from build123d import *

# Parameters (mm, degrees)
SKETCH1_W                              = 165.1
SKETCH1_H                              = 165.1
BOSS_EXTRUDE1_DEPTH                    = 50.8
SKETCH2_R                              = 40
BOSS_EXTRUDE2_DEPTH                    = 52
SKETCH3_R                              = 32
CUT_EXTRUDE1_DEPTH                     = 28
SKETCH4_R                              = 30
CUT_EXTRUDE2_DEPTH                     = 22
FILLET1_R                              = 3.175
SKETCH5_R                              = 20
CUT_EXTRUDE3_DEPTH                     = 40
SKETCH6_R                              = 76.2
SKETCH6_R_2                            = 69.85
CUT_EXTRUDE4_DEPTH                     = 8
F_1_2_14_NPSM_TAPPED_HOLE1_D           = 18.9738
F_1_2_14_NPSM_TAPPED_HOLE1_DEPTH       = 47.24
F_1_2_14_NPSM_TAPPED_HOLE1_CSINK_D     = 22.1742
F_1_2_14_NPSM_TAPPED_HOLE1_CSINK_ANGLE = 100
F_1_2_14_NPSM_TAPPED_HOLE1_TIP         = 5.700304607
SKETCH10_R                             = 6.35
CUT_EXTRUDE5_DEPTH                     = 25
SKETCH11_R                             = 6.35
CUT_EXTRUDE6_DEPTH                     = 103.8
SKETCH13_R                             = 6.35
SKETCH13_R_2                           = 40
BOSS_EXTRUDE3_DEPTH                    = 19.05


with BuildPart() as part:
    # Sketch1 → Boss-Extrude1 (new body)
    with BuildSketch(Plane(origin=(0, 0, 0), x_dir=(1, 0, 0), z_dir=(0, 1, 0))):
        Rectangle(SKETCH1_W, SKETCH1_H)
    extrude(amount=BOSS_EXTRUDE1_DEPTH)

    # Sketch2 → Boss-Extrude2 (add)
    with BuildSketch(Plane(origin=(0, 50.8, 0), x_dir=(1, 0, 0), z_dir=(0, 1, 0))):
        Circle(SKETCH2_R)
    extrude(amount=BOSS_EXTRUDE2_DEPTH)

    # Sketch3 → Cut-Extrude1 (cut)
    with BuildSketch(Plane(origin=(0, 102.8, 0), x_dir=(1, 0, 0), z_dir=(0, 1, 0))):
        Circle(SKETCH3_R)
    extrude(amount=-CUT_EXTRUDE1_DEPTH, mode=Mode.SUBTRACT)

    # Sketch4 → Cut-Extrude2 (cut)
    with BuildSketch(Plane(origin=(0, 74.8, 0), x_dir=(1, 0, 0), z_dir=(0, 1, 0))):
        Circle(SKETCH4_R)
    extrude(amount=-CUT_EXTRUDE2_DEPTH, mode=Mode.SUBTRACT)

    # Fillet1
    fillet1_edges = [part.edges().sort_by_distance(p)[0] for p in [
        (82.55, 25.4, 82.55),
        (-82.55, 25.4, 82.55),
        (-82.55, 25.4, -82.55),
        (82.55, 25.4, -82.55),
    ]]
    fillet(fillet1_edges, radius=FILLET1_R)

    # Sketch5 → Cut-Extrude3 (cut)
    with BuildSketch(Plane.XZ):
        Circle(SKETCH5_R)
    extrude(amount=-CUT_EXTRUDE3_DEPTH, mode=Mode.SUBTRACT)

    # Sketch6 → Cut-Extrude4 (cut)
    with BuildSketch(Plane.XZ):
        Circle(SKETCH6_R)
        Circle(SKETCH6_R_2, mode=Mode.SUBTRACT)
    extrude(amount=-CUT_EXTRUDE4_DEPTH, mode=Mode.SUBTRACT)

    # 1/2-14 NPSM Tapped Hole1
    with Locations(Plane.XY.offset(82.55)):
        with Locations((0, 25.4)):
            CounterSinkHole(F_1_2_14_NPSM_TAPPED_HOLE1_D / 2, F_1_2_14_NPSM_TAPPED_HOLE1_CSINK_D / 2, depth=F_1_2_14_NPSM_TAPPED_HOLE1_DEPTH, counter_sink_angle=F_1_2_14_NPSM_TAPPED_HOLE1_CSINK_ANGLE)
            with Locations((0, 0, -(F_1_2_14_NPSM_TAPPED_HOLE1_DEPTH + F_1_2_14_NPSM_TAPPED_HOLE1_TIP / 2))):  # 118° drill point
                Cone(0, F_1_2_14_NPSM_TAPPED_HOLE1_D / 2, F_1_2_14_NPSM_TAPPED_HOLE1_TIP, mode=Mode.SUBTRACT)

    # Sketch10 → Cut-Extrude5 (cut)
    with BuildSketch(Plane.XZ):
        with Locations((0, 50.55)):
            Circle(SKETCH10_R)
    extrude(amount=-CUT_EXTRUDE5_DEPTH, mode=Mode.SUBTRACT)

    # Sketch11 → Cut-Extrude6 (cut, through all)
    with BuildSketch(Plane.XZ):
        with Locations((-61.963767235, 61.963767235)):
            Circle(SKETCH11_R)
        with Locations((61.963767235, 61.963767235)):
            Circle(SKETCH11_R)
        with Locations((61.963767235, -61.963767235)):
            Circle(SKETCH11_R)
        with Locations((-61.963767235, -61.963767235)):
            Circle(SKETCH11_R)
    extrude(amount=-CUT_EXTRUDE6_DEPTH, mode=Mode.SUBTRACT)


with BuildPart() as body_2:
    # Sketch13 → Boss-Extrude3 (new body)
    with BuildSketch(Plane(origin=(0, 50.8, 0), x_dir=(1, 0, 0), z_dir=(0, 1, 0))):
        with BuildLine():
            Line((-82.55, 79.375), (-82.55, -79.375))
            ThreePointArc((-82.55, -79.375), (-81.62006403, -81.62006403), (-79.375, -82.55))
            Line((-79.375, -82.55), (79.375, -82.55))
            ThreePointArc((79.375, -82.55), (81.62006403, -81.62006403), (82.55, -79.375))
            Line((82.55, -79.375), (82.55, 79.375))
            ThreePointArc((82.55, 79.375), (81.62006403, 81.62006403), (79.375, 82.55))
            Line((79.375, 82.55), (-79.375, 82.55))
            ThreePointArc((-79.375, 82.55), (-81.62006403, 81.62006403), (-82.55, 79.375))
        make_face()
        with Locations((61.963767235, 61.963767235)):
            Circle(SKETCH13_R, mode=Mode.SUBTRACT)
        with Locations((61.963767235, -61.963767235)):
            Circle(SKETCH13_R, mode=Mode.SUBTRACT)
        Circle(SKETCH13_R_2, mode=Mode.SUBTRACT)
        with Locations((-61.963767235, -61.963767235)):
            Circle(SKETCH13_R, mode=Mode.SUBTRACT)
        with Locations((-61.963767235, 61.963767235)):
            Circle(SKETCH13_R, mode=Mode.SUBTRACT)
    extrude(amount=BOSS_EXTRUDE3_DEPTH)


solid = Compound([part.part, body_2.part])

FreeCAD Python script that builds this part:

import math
import FreeCAD as App
import Part
import Sketcher
Q = App.Units.Quantity


def edges_at(feature, points):
    """Names of the edges that pass closest to the given points."""
    edges = feature.Shape.Edges
    near = lambda p: min(range(len(edges)), key=lambda i: edges[i].distToShape(Part.Vertex(*p))[0])
    return sorted({f"Edge{near(p) + 1}" for p in points})


def add_polygon(sketch, points):
    """Adds a closed chain of lines whose ends are joined by coincident constraints."""
    first, n = sketch.GeometryCount, len(points)
    for a, b in zip(points, points[1:] + points[:1]):
        sketch.addGeometry(Part.LineSegment(App.Vector(*a, 0), App.Vector(*b, 0)), False)
    for i in range(n):
        sketch.addConstraint(Sketcher.Constraint("Coincident", first + i, 2, first + (i + 1) % n, 1))

doc = App.newDocument("Part")
body = doc.addObject("PartDesign::Body", "Body")

# Sketch on XZ plane
sketch1 = doc.addObject("Sketcher::SketchObject", "Sketch")
body.addObject(sketch1)
sketch1.AttachmentSupport = (doc.XZ_Plane, [""])
sketch1.MapMode = "FlatFace"
add_polygon(sketch1, [(-82.55, -82.55), (-82.55, 82.55), (82.55, 82.55), (82.55, -82.55)])  # lines 0-3
sketch1.addConstraint([
    Sketcher.Constraint("Vertical", 0),
    Sketcher.Constraint("Horizontal", 1),
    Sketcher.Constraint("Vertical", 2),
    Sketcher.Constraint("Horizontal", 3),
    Sketcher.Constraint("Symmetric", 0, 2, 2, 2, -1, 1),
    Sketcher.Constraint("Equal", 3, 0),
    Sketcher.Constraint("DistanceX", 1, 1, 1, 2, Q("165.1 mm")),
])
pad1 = doc.addObject("PartDesign::Pad", "Pad")
body.addObject(pad1)
pad1.Profile = sketch1
pad1.Length = 50.8
pad1.Reversed = True

# Sketch on XZ plane
sketch2 = doc.addObject("Sketcher::SketchObject", "Sketch001")
body.addObject(sketch2)
sketch2.AttachmentSupport = (doc.XZ_Plane, [""])
sketch2.MapMode = "FlatFace"
sketch2.AttachmentOffset = App.Placement(App.Vector(0, 0, -50.8), App.Rotation())
sketch2.addGeometry(Part.Circle(App.Vector(0, 0, 0), App.Vector(0, 0, 1), 40), False)
sketch2.addConstraint([
    Sketcher.Constraint("Coincident", 0, 3, -1, 1),
    Sketcher.Constraint("Diameter", 0, Q("80 mm")),
])
pad2 = doc.addObject("PartDesign::Pad", "Pad001")
body.addObject(pad2)
pad2.Profile = sketch2
pad2.Length = 52
pad2.Reversed = True

# Sketch on XZ plane
sketch3 = doc.addObject("Sketcher::SketchObject", "Sketch002")
body.addObject(sketch3)
sketch3.AttachmentSupport = (doc.XZ_Plane, [""])
sketch3.MapMode = "FlatFace"
sketch3.AttachmentOffset = App.Placement(App.Vector(0, 0, -102.8), App.Rotation())
sketch3.addGeometry(Part.Circle(App.Vector(0, 0, 0), App.Vector(0, 0, 1), 32), False)
sketch3.addConstraint([
    Sketcher.Constraint("Coincident", 0, 3, -1, 1),
    Sketcher.Constraint("Diameter", 0, Q("64 mm")),
])
pocket1 = doc.addObject("PartDesign::Pocket", "Pocket")
body.addObject(pocket1)
pocket1.Profile = sketch3
pocket1.Length = 28
pocket1.Reversed = True

# Sketch on XZ plane
sketch4 = doc.addObject("Sketcher::SketchObject", "Sketch003")
body.addObject(sketch4)
sketch4.AttachmentSupport = (doc.XZ_Plane, [""])
sketch4.MapMode = "FlatFace"
sketch4.AttachmentOffset = App.Placement(App.Vector(0, 0, -74.8), App.Rotation())
sketch4.addGeometry(Part.Circle(App.Vector(0, 0, 0), App.Vector(0, 0, 1), 30), False)
sketch4.addConstraint([
    Sketcher.Constraint("Coincident", 0, 3, -1, 1),
    Sketcher.Constraint("Diameter", 0, Q("60 mm")),
])
pocket2 = doc.addObject("PartDesign::Pocket", "Pocket001")
body.addObject(pocket2)
pocket2.Profile = sketch4
pocket2.Length = 22
pocket2.Reversed = True
doc.recompute()

fillet = doc.addObject("PartDesign::Fillet", "Fillet")
body.addObject(fillet)
fillet.Base = (pocket2, edges_at(pocket2, [
    (82.55, 25.4, 82.55),
    (-82.55, 25.4, 82.55),
    (-82.55, 25.4, -82.55),
    (82.55, 25.4, -82.55),
]))
fillet.Radius = 3.175

# Sketch on XZ plane
sketch5 = doc.addObject("Sketcher::SketchObject", "Sketch004")
body.addObject(sketch5)
sketch5.AttachmentSupport = (doc.XZ_Plane, [""])
sketch5.MapMode = "FlatFace"
sketch5.addGeometry(Part.Circle(App.Vector(0, 0, 0), App.Vector(0, 0, 1), 20), False)
sketch5.addConstraint([
    Sketcher.Constraint("Coincident", 0, 3, -1, 1),
    Sketcher.Constraint("Diameter", 0, Q("40 mm")),
])
pocket3 = doc.addObject("PartDesign::Pocket", "Pocket002")
body.addObject(pocket3)
pocket3.Profile = sketch5
pocket3.Length = 40

# Sketch on XZ plane
sketch6 = doc.addObject("Sketcher::SketchObject", "Sketch005")
body.addObject(sketch6)
sketch6.AttachmentSupport = (doc.XZ_Plane, [""])
sketch6.MapMode = "FlatFace"
sketch6.addGeometry([
    Part.Circle(App.Vector(0, 0, 0), App.Vector(0, 0, 1), 76.2),
    Part.Circle(App.Vector(0, 0, 0), App.Vector(0, 0, 1), 69.85),
], False)
sketch6.addConstraint([
    Sketcher.Constraint("Coincident", 0, 3, -1, 1),
    Sketcher.Constraint("Coincident", 1, 3, -1, 1),
    Sketcher.Constraint("Diameter", 0, Q("152.4 mm")),
    Sketcher.Constraint("Diameter", 1, Q("139.7 mm")),
])
pocket4 = doc.addObject("PartDesign::Pocket", "Pocket003")
body.addObject(pocket4)
pocket4.Profile = sketch6
pocket4.Length = 8

# Sketch on XY plane
sketch7 = doc.addObject("Sketcher::SketchObject", "Sketch006")
body.addObject(sketch7)
sketch7.AttachmentSupport = (doc.XY_Plane, [""])
sketch7.MapMode = "FlatFace"
sketch7.AttachmentOffset = App.Placement(App.Vector(0, 0, 82.55), App.Rotation())
sketch7.addGeometry(Part.Circle(App.Vector(0, 25.4, 0), App.Vector(0, 0, 1), 9.4869), False)
sketch7.addConstraint([
    Sketcher.Constraint("PointOnObject", 0, 3, -2),
    Sketcher.Constraint("Diameter", 0, Q("18.9738 mm")),
    Sketcher.Constraint("DistanceY", -1, 1, 0, 3, Q("25.4 mm")),
])
doc.recompute()
hole = doc.addObject("PartDesign::Hole", "Hole")
body.addObject(hole)
hole.Profile = sketch7
hole.ThreadType = "None"
hole.Diameter = 18.9738
hole.DepthType = "Dimension"
hole.Depth = 47.24
hole.DrillPoint = "Angled"
hole.DrillPointAngle = 118
hole.HoleCutType = "Countersink"
hole.HoleCutDiameter = 22.1742
hole.HoleCutCountersinkAngle = 100

# Sketch on XZ plane
sketch8 = doc.addObject("Sketcher::SketchObject", "Sketch007")
body.addObject(sketch8)
sketch8.AttachmentSupport = (doc.XZ_Plane, [""])
sketch8.MapMode = "FlatFace"
sketch8.addGeometry(Part.Circle(App.Vector(0, 50.55, 0), App.Vector(0, 0, 1), 6.35), False)
sketch8.addConstraint([
    Sketcher.Constraint("PointOnObject", 0, 3, -2),
    Sketcher.Constraint("Diameter", 0, Q("12.7 mm")),
    Sketcher.Constraint("DistanceY", -1, 1, 0, 3, Q("50.55 mm")),
])
pocket5 = doc.addObject("PartDesign::Pocket", "Pocket004")
body.addObject(pocket5)
pocket5.Profile = sketch8
pocket5.Length = 25

# Sketch on XZ plane
sketch9 = doc.addObject("Sketcher::SketchObject", "Sketch008")
body.addObject(sketch9)
sketch9.AttachmentSupport = (doc.XZ_Plane, [""])
sketch9.MapMode = "FlatFace"
sketch9.addGeometry([
    Part.Circle(App.Vector(-61.963767, 61.963767, 0), App.Vector(0, 0, 1), 6.35),
    Part.Circle(App.Vector(61.963767, 61.963767, 0), App.Vector(0, 0, 1), 6.35),
    Part.Circle(App.Vector(61.963767, -61.963767, 0), App.Vector(0, 0, 1), 6.35),
    Part.Circle(App.Vector(-61.963767, -61.963767, 0), App.Vector(0, 0, 1), 6.35),
], False)
sketch9.addConstraint([
    Sketcher.Constraint("Equal", 0, 1),
    Sketcher.Constraint("Equal", 1, 2),
    Sketcher.Constraint("Equal", 2, 3),
    Sketcher.Constraint("Symmetric", 0, 3, 2, 3, -1, 1),
    Sketcher.Constraint("Symmetric", 1, 3, 3, 3, -1, 1),
    Sketcher.Constraint("Symmetric", 0, 3, 1, 3, -2),
    Sketcher.Constraint("Diameter", 0, Q("12.7 mm")),
    Sketcher.Constraint("DistanceX", 0, 3, -1, 1, Q("61.963767 mm")),
    Sketcher.Constraint("DistanceY", -1, 1, 0, 3, Q("61.963767 mm")),
])
pocket6 = doc.addObject("PartDesign::Pocket", "Pocket005")
body.addObject(pocket6)
pocket6.Profile = sketch9
pocket6.Type = "ThroughAll"
body2 = doc.addObject("PartDesign::Body", "Body001")

# Sketch on XZ plane
sketch10 = doc.addObject("Sketcher::SketchObject", "Sketch009")
body2.addObject(sketch10)
sketch10.AttachmentSupport = (doc.getObject("XZ_Plane001"), [""])
sketch10.MapMode = "FlatFace"
sketch10.AttachmentOffset = App.Placement(App.Vector(0, 0, -50.8), App.Rotation())
sketch10.addGeometry([
    Part.LineSegment(App.Vector(-82.55, -79.375, 0), App.Vector(-82.55, 79.375, 0)),  # 0
    Part.ArcOfCircle(Part.Circle(App.Vector(-79.375, 79.375, 0), App.Vector(0, 0, 1), 3.175), math.radians(90), math.radians(180)),  # 1
    Part.LineSegment(App.Vector(-79.375, 82.55, 0), App.Vector(79.375, 82.55, 0)),  # 2
    Part.ArcOfCircle(Part.Circle(App.Vector(79.375, 79.375, 0), App.Vector(0, 0, 1), 3.175), math.radians(0), math.radians(90)),  # 3
    Part.LineSegment(App.Vector(82.55, 79.375, 0), App.Vector(82.55, -79.375, 0)),  # 4
    Part.ArcOfCircle(Part.Circle(App.Vector(79.375, -79.375, 0), App.Vector(0, 0, 1), 3.175), math.radians(-90), math.radians(0)),  # 5
    Part.LineSegment(App.Vector(79.375, -82.55, 0), App.Vector(-79.375, -82.55, 0)),  # 6
    Part.ArcOfCircle(Part.Circle(App.Vector(-79.375, -79.375, 0), App.Vector(0, 0, 1), 3.175), math.radians(-180), math.radians(-90)),  # 7
    Part.Circle(App.Vector(-61.963767, 61.963767, 0), App.Vector(0, 0, 1), 6.35),  # 8
    Part.Circle(App.Vector(61.963767, 61.963767, 0), App.Vector(0, 0, 1), 6.35),  # 9
    Part.Circle(App.Vector(-61.963767, -61.963767, 0), App.Vector(0, 0, 1), 6.35),  # 10
    Part.Circle(App.Vector(0, 0, 0), App.Vector(0, 0, 1), 40),  # 11
    Part.Circle(App.Vector(61.963767, -61.963767, 0), App.Vector(0, 0, 1), 6.35),  # 12
], False)
sketch10.addConstraint([
    Sketcher.Constraint("Tangent", 0, 2, 1, 2),
    Sketcher.Constraint("Tangent", 1, 1, 2, 1),
    Sketcher.Constraint("Tangent", 2, 2, 3, 2),
    Sketcher.Constraint("Tangent", 3, 1, 4, 1),
    Sketcher.Constraint("Tangent", 4, 2, 5, 2),
    Sketcher.Constraint("Tangent", 5, 1, 6, 1),
    Sketcher.Constraint("Tangent", 6, 2, 7, 2),
    Sketcher.Constraint("Tangent", 7, 1, 0, 1),
    Sketcher.Constraint("Vertical", 0),
    Sketcher.Constraint("Horizontal", 2),
    Sketcher.Constraint("Vertical", 4),
    Sketcher.Constraint("Horizontal", 6),
    Sketcher.Constraint("Coincident", 11, 3, -1, 1),
    Sketcher.Constraint("Equal", 1, 3),
    Sketcher.Constraint("Equal", 3, 5),
    Sketcher.Constraint("Equal", 5, 7),
    Sketcher.Constraint("Equal", 8, 9),
    Sketcher.Constraint("Equal", 9, 10),
    Sketcher.Constraint("Equal", 10, 12),
    Sketcher.Constraint("Symmetric", 1, 3, 5, 3, -1, 1),
    Sketcher.Constraint("Symmetric", 9, 3, 10, 3, -1, 1),
    Sketcher.Constraint("Symmetric", 8, 3, 12, 3, -1, 1),
    Sketcher.Constraint("Symmetric", 8, 3, 9, 3, -2),
    Sketcher.Constraint("Equal", 6, 0),
    Sketcher.Constraint("Diameter", 11, Q("80 mm")),
    Sketcher.Constraint("Diameter", 8, Q("12.7 mm")),
    Sketcher.Constraint("Radius", 1, Q("3.175 mm")),
    Sketcher.Constraint("DistanceX", 2, 1, 2, 2, Q("158.75 mm")),
    Sketcher.Constraint("DistanceX", 8, 3, -1, 1, Q("61.963767 mm")),
    Sketcher.Constraint("DistanceY", -1, 1, 8, 3, Q("61.963767 mm")),
])
pad3 = doc.addObject("PartDesign::Pad", "Pad002")
body2.addObject(pad3)
pad3.Profile = sketch10
pad3.Length = 19.05
pad3.Reversed = True

doc.recompute()
